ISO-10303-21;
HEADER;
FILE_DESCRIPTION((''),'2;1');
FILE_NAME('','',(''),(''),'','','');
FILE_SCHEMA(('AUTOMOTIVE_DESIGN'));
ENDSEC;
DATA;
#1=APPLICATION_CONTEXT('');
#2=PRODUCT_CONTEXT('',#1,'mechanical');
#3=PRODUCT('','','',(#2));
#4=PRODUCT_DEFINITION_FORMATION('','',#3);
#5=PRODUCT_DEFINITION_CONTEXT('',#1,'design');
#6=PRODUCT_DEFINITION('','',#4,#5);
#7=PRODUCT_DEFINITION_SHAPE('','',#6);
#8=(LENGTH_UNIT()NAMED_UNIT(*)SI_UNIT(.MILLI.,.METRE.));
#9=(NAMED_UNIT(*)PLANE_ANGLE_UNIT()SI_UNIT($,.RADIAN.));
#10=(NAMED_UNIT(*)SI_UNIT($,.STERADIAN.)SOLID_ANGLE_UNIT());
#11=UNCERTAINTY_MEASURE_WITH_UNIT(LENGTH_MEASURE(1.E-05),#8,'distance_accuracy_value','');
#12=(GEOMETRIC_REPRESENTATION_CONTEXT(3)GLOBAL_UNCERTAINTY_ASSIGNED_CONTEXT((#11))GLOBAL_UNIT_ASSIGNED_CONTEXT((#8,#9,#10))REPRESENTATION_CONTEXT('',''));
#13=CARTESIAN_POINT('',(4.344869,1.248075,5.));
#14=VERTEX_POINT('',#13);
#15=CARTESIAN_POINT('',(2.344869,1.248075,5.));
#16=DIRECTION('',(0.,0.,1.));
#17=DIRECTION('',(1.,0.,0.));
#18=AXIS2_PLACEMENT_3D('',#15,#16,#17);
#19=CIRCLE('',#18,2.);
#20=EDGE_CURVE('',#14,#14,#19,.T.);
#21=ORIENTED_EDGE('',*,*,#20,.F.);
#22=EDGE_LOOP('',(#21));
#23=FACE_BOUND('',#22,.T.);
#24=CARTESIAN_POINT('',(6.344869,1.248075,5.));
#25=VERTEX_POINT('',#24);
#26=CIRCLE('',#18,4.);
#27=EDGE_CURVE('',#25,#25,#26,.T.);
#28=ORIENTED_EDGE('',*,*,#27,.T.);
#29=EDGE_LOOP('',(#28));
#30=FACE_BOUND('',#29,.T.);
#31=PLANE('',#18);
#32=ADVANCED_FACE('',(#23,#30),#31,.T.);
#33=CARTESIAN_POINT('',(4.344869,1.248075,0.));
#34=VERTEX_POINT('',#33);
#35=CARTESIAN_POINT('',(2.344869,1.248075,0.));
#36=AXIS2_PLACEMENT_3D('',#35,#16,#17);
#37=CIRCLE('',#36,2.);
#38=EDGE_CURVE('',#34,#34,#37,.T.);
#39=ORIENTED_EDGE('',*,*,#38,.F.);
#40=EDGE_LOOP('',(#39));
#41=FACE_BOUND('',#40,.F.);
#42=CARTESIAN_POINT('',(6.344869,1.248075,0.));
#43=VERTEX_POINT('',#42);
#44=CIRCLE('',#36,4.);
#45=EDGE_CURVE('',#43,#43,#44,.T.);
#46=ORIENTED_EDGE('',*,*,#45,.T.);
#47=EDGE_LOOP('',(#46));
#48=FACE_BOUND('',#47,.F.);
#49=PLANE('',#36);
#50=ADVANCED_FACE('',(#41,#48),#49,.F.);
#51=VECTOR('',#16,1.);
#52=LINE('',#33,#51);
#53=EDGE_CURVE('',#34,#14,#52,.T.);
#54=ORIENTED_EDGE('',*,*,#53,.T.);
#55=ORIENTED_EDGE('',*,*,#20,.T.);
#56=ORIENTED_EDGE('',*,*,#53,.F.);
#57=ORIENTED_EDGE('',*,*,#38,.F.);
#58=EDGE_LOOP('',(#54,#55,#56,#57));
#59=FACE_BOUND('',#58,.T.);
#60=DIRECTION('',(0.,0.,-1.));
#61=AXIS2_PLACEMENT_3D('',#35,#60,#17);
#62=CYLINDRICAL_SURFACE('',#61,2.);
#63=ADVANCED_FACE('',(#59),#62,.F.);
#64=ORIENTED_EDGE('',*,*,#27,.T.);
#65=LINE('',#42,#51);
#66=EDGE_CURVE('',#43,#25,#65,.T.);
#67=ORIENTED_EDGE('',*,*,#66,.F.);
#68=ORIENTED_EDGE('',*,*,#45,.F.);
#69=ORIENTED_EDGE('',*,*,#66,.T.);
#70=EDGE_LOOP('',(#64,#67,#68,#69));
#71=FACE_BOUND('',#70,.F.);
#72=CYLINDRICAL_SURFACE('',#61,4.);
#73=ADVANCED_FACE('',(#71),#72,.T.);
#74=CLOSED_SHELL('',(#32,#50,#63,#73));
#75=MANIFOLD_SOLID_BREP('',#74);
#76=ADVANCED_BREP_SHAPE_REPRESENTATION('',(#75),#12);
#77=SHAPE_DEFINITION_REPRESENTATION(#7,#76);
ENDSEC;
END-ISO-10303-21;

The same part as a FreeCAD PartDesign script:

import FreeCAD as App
import Part
import Sketcher
from FreeCAD import Vector

doc = App.newDocument("Part")
body = doc.addObject("PartDesign::Body", "Body")

# Sketch on XY plane
sketch1 = body.newObject("Sketcher::SketchObject", "Sketch")
sketch1.AttachmentSupport = (doc.getObject("XY_Plane"), [""])
sketch1.MapMode = "FlatFace"
sketch1.addGeometry(Part.Circle(Vector(2.3, 1.2, 0), Vector(0, 0, 1), 4), False)
sketch1.addGeometry(Part.Circle(Vector(2.3, 1.2, 0), Vector(0, 0, 1), 2), False)
sketch1.addConstraint(Sketcher.Constraint("Coincident", 1, 3, 0, 3))
sketch1.addConstraint(Sketcher.Constraint("Diameter", 0, 8.0))
sketch1.addConstraint(Sketcher.Constraint("Diameter", 1, 4.0))
sketch1.addConstraint(Sketcher.Constraint("DistanceX", -1, 1, 0, 3, 2.344869))
sketch1.addConstraint(Sketcher.Constraint("DistanceY", -1, 1, 0, 3, 1.248075))
pad1 = body.newObject("PartDesign::Pad", "Pad")
pad1.Profile = sketch1
pad1.Length = 5

doc.recompute()
